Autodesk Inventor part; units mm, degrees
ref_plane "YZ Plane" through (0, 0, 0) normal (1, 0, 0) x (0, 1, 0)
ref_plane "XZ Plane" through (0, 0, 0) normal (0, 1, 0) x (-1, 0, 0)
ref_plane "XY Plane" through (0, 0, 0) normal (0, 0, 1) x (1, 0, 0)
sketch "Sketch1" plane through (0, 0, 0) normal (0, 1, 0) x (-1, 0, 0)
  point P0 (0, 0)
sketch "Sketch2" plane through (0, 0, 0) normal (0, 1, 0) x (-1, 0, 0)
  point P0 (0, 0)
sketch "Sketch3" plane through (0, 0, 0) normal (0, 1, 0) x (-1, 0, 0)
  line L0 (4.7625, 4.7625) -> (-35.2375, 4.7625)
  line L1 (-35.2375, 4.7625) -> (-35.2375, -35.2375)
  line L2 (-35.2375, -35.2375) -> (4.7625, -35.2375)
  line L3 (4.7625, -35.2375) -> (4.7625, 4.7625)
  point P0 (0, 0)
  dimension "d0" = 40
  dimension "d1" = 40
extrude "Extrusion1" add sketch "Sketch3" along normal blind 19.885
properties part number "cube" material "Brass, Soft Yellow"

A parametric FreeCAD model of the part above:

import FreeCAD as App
import Part
import Sketcher
from FreeCAD import Vector
Q = App.Units.Quantity


def add_polygon(sketch, points):
    """Adds a closed chain of lines whose ends are joined by coincident constraints."""
    first, n = sketch.GeometryCount, len(points)
    for a, b in zip(points, points[1:] + points[:1]):
        sketch.addGeometry(Part.LineSegment(App.Vector(*a, 0), App.Vector(*b, 0)), False)
    for i in range(n):
        sketch.addConstraint(Sketcher.Constraint("Coincident", first + i, 2, first + (i + 1) % n, 1))

doc = App.newDocument("Part")
body = doc.addObject("PartDesign::Body", "Body")

# Sketch on XZ plane
sketch1 = body.newObject("Sketcher::SketchObject", "Sketch")
sketch1.AttachmentSupport = (doc.getObject("XZ_Plane"), [""])
sketch1.MapMode = "FlatFace"
add_polygon(sketch1, [(-4.7625, -35.2375), (-4.7625, 4.7625), (35.2375, 4.7625), (35.2375, -35.2375)])  # lines 0-3
sketch1.addConstraint([
    Sketcher.Constraint("Vertical", 0),
    Sketcher.Constraint("Horizontal", 1),
    Sketcher.Constraint("Vertical", 2),
    Sketcher.Constraint("Horizontal", 3),
    Sketcher.Constraint("Equal", 3, 0),
    Sketcher.Constraint("DistanceX", 1, 1, 1, 2, Q("40 mm")),
    Sketcher.Constraint("DistanceX", 0, 2, -1, 1, Q("4.7625 mm")),
    Sketcher.Constraint("DistanceY", -1, 1, 0, 2, Q("4.7625 mm")),
])
pad1 = body.newObject("PartDesign::Pad", "Pad")
pad1.Profile = sketch1
pad1.Length = 19.885
pad1.Reversed = True

doc.recompute()
